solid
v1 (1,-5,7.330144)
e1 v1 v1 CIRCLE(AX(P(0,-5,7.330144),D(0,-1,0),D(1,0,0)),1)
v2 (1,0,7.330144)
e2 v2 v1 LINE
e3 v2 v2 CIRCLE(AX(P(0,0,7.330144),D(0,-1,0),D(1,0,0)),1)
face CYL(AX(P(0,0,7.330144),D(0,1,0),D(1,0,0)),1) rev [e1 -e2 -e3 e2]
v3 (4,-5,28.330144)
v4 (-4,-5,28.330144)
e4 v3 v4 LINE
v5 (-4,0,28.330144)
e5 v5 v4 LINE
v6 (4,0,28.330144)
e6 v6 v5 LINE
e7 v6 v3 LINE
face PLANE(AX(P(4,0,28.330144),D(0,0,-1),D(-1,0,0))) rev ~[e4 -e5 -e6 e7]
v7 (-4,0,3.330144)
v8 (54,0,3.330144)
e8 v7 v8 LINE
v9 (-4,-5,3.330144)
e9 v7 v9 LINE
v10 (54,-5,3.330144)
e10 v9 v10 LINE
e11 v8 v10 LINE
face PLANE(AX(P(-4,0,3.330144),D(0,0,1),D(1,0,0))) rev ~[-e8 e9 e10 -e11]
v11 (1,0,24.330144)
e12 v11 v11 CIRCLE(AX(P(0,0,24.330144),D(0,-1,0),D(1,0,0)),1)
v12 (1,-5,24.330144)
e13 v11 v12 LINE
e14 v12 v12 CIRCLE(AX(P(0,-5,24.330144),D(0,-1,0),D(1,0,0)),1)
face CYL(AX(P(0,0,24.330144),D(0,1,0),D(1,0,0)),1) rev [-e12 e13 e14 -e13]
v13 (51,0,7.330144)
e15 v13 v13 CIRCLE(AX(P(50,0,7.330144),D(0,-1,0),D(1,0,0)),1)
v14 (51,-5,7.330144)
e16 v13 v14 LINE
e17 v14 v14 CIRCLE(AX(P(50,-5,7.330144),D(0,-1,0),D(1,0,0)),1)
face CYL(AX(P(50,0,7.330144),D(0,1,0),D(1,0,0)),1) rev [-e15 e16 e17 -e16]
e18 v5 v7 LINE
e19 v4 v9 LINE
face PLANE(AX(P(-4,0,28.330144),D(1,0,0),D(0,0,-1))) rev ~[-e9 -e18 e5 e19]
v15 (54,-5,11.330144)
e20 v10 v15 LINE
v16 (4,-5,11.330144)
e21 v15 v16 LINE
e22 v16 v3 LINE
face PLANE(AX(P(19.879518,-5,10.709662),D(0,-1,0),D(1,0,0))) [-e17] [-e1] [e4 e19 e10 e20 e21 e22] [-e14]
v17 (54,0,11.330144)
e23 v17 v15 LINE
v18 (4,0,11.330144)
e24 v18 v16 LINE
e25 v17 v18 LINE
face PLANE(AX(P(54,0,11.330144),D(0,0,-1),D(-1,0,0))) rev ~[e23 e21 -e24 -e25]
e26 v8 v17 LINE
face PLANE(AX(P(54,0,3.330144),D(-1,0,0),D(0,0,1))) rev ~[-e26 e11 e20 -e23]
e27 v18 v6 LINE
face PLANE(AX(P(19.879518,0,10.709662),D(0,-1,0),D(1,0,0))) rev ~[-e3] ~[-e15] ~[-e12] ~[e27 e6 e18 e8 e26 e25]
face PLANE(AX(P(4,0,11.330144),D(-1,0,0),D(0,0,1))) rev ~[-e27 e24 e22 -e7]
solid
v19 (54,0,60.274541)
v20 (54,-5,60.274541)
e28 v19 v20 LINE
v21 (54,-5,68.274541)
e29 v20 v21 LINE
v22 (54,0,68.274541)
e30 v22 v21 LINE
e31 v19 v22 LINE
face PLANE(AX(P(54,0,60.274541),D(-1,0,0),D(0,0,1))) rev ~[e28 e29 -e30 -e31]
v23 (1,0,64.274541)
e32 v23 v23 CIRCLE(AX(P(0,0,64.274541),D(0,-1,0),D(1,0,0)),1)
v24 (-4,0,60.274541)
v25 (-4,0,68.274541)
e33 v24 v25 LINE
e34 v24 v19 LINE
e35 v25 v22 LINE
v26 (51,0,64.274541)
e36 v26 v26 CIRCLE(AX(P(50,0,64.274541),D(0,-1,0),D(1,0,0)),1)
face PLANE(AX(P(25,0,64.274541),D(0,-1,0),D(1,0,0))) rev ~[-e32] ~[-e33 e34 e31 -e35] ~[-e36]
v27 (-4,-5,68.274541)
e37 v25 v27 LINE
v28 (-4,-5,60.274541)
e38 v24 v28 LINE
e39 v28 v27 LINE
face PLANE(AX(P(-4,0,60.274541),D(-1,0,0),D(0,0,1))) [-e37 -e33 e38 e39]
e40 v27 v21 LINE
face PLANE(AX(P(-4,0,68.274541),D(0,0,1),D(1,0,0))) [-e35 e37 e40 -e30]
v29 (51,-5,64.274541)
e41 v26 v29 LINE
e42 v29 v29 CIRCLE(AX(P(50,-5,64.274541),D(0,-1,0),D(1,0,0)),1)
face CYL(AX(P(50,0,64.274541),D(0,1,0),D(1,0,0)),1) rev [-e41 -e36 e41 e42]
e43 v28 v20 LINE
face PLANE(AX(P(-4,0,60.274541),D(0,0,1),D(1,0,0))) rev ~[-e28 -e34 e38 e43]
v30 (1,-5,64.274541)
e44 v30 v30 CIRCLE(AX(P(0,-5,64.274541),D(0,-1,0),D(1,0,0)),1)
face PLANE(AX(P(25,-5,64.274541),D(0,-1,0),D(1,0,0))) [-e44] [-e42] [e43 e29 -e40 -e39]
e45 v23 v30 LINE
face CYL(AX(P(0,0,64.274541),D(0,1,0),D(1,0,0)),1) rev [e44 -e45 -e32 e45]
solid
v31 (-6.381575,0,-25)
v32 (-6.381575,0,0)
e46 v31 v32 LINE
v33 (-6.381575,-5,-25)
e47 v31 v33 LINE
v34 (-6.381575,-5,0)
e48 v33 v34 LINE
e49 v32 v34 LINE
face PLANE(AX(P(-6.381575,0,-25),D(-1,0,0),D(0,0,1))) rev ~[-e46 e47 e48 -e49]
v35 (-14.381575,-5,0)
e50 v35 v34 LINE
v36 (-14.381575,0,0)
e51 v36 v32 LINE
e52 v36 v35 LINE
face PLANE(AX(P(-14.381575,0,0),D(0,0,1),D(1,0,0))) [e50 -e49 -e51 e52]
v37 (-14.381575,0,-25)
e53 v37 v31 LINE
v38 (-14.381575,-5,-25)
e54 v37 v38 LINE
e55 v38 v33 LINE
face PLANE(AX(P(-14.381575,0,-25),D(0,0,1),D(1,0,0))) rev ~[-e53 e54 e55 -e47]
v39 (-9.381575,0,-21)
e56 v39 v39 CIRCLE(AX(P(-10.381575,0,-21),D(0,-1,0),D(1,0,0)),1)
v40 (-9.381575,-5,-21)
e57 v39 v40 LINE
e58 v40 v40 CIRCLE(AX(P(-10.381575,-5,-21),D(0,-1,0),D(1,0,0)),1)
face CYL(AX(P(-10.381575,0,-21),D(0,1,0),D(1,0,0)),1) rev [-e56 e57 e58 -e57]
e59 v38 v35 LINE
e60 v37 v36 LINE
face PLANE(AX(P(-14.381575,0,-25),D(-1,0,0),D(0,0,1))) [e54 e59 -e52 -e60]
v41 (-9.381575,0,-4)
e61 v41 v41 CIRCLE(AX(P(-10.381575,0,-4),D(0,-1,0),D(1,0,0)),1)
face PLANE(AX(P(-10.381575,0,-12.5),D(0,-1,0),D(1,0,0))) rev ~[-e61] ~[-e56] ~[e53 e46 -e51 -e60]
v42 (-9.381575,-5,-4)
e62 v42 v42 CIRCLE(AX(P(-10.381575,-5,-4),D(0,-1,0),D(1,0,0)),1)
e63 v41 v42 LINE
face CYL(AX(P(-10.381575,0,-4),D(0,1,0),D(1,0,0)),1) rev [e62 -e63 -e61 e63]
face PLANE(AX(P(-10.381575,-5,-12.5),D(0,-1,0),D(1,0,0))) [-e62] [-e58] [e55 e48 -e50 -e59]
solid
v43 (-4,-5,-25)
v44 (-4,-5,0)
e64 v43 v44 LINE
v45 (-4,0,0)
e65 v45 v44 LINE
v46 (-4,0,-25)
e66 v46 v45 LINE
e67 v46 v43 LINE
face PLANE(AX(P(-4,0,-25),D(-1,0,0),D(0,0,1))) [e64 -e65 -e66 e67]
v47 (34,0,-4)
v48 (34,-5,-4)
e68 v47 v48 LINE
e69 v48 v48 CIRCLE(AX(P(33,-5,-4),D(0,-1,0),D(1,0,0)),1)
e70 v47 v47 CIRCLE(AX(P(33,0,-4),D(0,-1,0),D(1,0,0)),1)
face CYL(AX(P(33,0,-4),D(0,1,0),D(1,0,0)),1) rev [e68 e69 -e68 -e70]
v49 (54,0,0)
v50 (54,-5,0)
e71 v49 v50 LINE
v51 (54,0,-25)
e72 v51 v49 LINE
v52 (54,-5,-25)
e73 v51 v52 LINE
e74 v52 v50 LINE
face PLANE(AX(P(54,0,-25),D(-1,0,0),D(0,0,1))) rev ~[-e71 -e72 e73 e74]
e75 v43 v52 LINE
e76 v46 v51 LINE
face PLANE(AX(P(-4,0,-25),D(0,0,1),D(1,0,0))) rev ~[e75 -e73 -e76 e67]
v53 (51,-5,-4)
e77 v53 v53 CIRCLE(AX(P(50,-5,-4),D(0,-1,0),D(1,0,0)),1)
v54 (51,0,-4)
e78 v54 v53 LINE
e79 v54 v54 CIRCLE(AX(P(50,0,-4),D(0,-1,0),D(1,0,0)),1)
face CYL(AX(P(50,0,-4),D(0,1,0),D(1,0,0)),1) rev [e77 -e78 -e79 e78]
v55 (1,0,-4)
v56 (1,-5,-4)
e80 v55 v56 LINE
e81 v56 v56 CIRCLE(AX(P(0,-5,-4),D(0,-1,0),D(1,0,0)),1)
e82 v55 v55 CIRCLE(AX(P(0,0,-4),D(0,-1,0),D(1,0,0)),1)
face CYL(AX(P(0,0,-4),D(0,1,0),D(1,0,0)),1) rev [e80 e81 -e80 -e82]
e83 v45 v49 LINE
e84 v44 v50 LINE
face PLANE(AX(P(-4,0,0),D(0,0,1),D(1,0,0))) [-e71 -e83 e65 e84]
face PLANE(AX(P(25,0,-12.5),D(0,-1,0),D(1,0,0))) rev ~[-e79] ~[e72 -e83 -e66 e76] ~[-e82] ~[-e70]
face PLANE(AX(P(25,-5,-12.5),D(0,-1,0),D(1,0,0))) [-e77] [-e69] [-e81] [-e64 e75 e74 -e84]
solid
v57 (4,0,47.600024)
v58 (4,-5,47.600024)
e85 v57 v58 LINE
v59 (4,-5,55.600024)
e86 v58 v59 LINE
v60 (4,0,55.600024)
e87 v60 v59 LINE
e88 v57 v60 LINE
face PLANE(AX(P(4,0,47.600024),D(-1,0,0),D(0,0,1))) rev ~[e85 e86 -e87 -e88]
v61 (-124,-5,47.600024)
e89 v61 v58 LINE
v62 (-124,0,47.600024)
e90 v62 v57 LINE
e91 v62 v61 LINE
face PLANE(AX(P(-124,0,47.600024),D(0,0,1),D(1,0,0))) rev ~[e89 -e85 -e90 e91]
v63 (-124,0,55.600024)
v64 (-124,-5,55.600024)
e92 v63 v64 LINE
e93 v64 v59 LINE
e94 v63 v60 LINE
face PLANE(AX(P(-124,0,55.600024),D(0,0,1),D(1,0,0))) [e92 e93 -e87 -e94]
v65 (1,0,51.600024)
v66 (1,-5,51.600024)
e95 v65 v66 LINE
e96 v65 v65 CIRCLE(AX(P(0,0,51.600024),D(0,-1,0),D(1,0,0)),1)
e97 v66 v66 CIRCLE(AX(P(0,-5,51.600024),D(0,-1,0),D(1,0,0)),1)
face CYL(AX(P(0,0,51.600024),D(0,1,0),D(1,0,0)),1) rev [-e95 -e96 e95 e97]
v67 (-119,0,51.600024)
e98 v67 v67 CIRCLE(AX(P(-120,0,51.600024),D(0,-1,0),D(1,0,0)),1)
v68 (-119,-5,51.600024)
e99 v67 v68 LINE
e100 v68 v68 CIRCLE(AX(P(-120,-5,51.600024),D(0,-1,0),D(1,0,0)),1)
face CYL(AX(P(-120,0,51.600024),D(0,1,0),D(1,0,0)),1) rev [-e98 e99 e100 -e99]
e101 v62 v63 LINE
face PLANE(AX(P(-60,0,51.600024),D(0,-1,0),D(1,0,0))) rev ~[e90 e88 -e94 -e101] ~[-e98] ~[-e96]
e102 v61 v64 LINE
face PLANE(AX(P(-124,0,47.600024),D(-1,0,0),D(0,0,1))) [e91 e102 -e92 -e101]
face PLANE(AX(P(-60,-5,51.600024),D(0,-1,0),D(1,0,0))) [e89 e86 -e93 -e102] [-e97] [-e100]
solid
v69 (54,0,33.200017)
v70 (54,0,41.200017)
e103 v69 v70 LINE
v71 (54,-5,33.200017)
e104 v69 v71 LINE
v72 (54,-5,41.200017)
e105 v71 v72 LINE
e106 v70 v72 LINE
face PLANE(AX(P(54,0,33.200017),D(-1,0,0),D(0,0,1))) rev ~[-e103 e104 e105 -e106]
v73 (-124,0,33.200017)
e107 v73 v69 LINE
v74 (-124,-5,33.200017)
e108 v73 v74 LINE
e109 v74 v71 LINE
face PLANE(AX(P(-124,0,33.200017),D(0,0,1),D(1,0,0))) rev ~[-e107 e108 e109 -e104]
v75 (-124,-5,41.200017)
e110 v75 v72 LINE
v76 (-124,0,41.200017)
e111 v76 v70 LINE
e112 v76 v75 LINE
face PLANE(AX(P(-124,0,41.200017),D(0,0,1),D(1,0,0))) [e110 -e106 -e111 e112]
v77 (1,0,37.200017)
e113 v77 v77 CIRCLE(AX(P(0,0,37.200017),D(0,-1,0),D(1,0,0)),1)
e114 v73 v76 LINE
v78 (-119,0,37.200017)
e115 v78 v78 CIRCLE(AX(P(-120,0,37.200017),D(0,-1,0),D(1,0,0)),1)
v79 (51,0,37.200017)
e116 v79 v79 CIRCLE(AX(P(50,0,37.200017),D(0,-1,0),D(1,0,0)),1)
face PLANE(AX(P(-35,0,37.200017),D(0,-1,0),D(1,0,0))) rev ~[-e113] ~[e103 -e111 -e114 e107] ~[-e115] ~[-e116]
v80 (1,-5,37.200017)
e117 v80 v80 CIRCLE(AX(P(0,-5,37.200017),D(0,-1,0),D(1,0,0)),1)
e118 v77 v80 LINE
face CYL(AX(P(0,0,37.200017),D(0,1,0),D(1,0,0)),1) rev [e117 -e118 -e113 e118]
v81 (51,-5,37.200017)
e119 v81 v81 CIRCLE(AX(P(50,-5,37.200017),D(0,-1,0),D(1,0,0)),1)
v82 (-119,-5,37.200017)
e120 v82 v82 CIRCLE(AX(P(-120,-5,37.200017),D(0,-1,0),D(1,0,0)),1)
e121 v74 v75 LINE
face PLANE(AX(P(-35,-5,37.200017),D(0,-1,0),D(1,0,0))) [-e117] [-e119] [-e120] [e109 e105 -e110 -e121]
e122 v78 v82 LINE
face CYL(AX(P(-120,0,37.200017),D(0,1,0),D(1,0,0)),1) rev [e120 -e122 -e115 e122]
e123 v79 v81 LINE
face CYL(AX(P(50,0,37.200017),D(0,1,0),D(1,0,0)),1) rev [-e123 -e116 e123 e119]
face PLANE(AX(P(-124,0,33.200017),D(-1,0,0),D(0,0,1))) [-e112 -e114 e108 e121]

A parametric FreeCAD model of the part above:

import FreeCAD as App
import Part
import Sketcher

doc = App.newDocument("Part")
body = doc.addObject("PartDesign::Body", "Body")

# Sketch on XZ plane
sketch1 = body.newObject("Sketcher::SketchObject", "Sketch")
sketch1.AttachmentSupport = (doc.getObject("XZ_Plane"), [""])
sketch1.MapMode = "FlatFace"
sketch1.addGeometry([
    Part.LineSegment(App.Vector(-4, 68.3, 0), App.Vector(-4, 60.3, 0)),  # 0
    Part.LineSegment(App.Vector(-4, 60.3, 0), App.Vector(54, 60.3, 0)),  # 1
    Part.LineSegment(App.Vector(54, 60.3, 0), App.Vector(54, 68.3, 0)),  # 2
    Part.LineSegment(App.Vector(54, 68.3, 0), App.Vector(-4, 68.3, 0)),  # 3
    Part.Circle(App.Vector(0, 64.3, 0), App.Vector(0, 0, 1), 1),  # 4
    Part.Circle(App.Vector(50, 64.3, 0), App.Vector(0, 0, 1), 1),  # 5
], False)
sketch1.addConstraint([
    Sketcher.Constraint("Coincident", 0, 2, 1, 1),
    Sketcher.Constraint("Coincident", 1, 2, 2, 1),
    Sketcher.Constraint("Coincident", 2, 2, 3, 1),
    Sketcher.Constraint("Coincident", 3, 2, 0, 1),
    Sketcher.Constraint("Vertical", 0),
    Sketcher.Constraint("Horizontal", 1),
    Sketcher.Constraint("Vertical", 2),
    Sketcher.Constraint("Horizontal", 3),
    Sketcher.Constraint("Equal", 4, 5),
    Sketcher.Constraint("PointOnObject", 4, 3, -2),
    Sketcher.Constraint("Horizontal", 4, 3, 5, 3),
    Sketcher.Constraint("Diameter", 4, 2.0),
    Sketcher.Constraint("DistanceX", 1, 1, 1, 2, 58.0),
    Sketcher.Constraint("DistanceY", 0, 2, 0, 1, 8.0),
    Sketcher.Constraint("DistanceX", -1, 1, 5, 3, 50.0),
    Sketcher.Constraint("DistanceX", 0, 2, -1, 1, 4.0),
    Sketcher.Constraint("DistanceY", 0, 2, 4, 3, 4.0),
    Sketcher.Constraint("DistanceY", -1, 1, 4, 3, 64.274541),
])
pad1 = body.newObject("PartDesign::Pad", "Pad")
pad1.Profile = sketch1
pad1.Length = 5
body2 = doc.addObject("PartDesign::Body", "Body001")

# Sketch on XZ plane
sketch2 = body2.newObject("Sketcher::SketchObject", "Sketch001")
sketch2.AttachmentSupport = (doc.getObject("XZ_Plane001"), [""])
sketch2.MapMode = "FlatFace"
sketch2.addGeometry([
    Part.LineSegment(App.Vector(-124, 55.600024, 0), App.Vector(-124, 47.600024, 0)),  # 0
    Part.LineSegment(App.Vector(-124, 47.600024, 0), App.Vector(4, 47.600024, 0)),  # 1
    Part.LineSegment(App.Vector(4, 47.600024, 0), App.Vector(4, 55.600024, 0)),  # 2
    Part.LineSegment(App.Vector(4, 55.600024, 0), App.Vector(-124, 55.600024, 0)),  # 3
    Part.Circle(App.Vector(-120, 51.600024, 0), App.Vector(0, 0, 1), 1),  # 4
    Part.Circle(App.Vector(0, 51.600024, 0), App.Vector(0, 0, 1), 1),  # 5
], False)
sketch2.addConstraint([
    Sketcher.Constraint("Coincident", 0, 2, 1, 1),
    Sketcher.Constraint("Coincident", 1, 2, 2, 1),
    Sketcher.Constraint("Coincident", 2, 2, 3, 1),
    Sketcher.Constraint("Coincident", 3, 2, 0, 1),
    Sketcher.Constraint("Vertical", 0),
    Sketcher.Constraint("Horizontal", 1),
    Sketcher.Constraint("Vertical", 2),
    Sketcher.Constraint("Horizontal", 3),
    Sketcher.Constraint("Equal", 4, 5),
    Sketcher.Constraint("PointOnObject", 5, 3, -2),
    Sketcher.Constraint("Horizontal", 4, 3, 5, 3),
    Sketcher.Constraint("Diameter", 4, 2.0),
    Sketcher.Constraint("DistanceX", 1, 1, 1, 2, 128.0),
    Sketcher.Constraint("DistanceY", 0, 2, 0, 1, 8.0),
    Sketcher.Constraint("DistanceX", 4, 3, -1, 1, 120.0),
    Sketcher.Constraint("DistanceX", 0, 2, -1, 1, 124.0),
    Sketcher.Constraint("DistanceY", 0, 2, 4, 3, 4.0),
    Sketcher.Constraint("DistanceY", -1, 1, 4, 3, 51.600024),
])
pad2 = body2.newObject("PartDesign::Pad", "Pad001")
pad2.Profile = sketch2
pad2.Length = 5
body3 = doc.addObject("PartDesign::Body", "Body002")

# Sketch on XZ plane
sketch3 = body3.newObject("Sketcher::SketchObject", "Sketch002")
sketch3.AttachmentSupport = (doc.getObject("XZ_Plane002"), [""])
sketch3.MapMode = "FlatFace"
sketch3.addGeometry([
    Part.LineSegment(App.Vector(-124, 41.2, 0), App.Vector(-124, 33.2, 0)),  # 0
    Part.LineSegment(App.Vector(-124, 33.2, 0), App.Vector(54, 33.2, 0)),  # 1
    Part.LineSegment(App.Vector(54, 33.2, 0), App.Vector(54, 41.2, 0)),  # 2
    Part.LineSegment(App.Vector(54, 41.2, 0), App.Vector(-124, 41.2, 0)),  # 3
    Part.Circle(App.Vector(-120, 37.2, 0), App.Vector(0, 0, 1), 1),  # 4
    Part.Circle(App.Vector(0, 37.2, 0), App.Vector(0, 0, 1), 1),  # 5
    Part.Circle(App.Vector(50, 37.2, 0), App.Vector(0, 0, 1), 1),  # 6
], False)
sketch3.addConstraint([
    Sketcher.Constraint("Coincident", 0, 2, 1, 1),
    Sketcher.Constraint("Coincident", 1, 2, 2, 1),
    Sketcher.Constraint("Coincident", 2, 2, 3, 1),
    Sketcher.Constraint("Coincident", 3, 2, 0, 1),
    Sketcher.Constraint("Vertical", 0),
    Sketcher.Constraint("Horizontal", 1),
    Sketcher.Constraint("Vertical", 2),
    Sketcher.Constraint("Horizontal", 3),
    Sketcher.Constraint("Equal", 4, 5),
    Sketcher.Constraint("Equal", 5, 6),
    Sketcher.Constraint("PointOnObject", 5, 3, -2),
    Sketcher.Constraint("Horizontal", 4, 3, 5, 3),
    Sketcher.Constraint("Horizontal", 5, 3, 6, 3),
    Sketcher.Constraint("Diameter", 4, 2.0),
    Sketcher.Constraint("DistanceX", 1, 1, 1, 2, 178.0),
    Sketcher.Constraint("DistanceY", 0, 2, 0, 1, 8.0),
    Sketcher.Constraint("DistanceX", 4, 3, -1, 1, 120.0),
    Sketcher.Constraint("DistanceX", -1, 1, 6, 3, 50.0),
    Sketcher.Constraint("DistanceX", 0, 2, -1, 1, 124.0),
    Sketcher.Constraint("DistanceY", 0, 2, 4, 3, 4.0),
    Sketcher.Constraint("DistanceY", -1, 1, 4, 3, 37.200017),
])
pad3 = body3.newObject("PartDesign::Pad", "Pad002")
pad3.Profile = sketch3
pad3.Length = 5
body4 = doc.addObject("PartDesign::Body", "Body003")

# Sketch on XZ plane
sketch4 = body4.newObject("Sketcher::SketchObject", "Sketch003")
sketch4.AttachmentSupport = (doc.getObject("XZ_Plane003"), [""])
sketch4.MapMode = "FlatFace"
sketch4.addGeometry([
    Part.LineSegment(App.Vector(4, 28.3, 0), App.Vector(-4, 28.3, 0)),  # 0
    Part.LineSegment(App.Vector(-4, 28.3, 0), App.Vector(-4, 3.3, 0)),  # 1
    Part.LineSegment(App.Vector(-4, 3.3, 0), App.Vector(54, 3.3, 0)),  # 2
    Part.LineSegment(App.Vector(54, 3.3, 0), App.Vector(54, 11.3, 0)),  # 3
    Part.LineSegment(App.Vector(54, 11.3, 0), App.Vector(4, 11.3, 0)),  # 4
    Part.LineSegment(App.Vector(4, 11.3, 0), App.Vector(4, 28.3, 0)),  # 5
    Part.Circle(App.Vector(0, 7.3, 0), App.Vector(0, 0, 1), 1),  # 6
    Part.Circle(App.Vector(50, 7.3, 0), App.Vector(0, 0, 1), 1),  # 7
    Part.Circle(App.Vector(0, 24.3, 0), App.Vector(0, 0, 1), 1),  # 8
], False)
sketch4.addConstraint([
    Sketcher.Constraint("Coincident", 0, 2, 1, 1),
    Sketcher.Constraint("Coincident", 1, 2, 2, 1),
    Sketcher.Constraint("Coincident", 2, 2, 3, 1),
    Sketcher.Constraint("Coincident", 3, 2, 4, 1),
    Sketcher.Constraint("Coincident", 4, 2, 5, 1),
    Sketcher.Constraint("Coincident", 5, 2, 0, 1),
    Sketcher.Constraint("Horizontal", 0),
    Sketcher.Constraint("Vertical", 1),
    Sketcher.Constraint("Horizontal", 2),
    Sketcher.Constraint("Vertical", 3),
    Sketcher.Constraint("Horizontal", 4),
    Sketcher.Constraint("Vertical", 5),
    Sketcher.Constraint("Equal", 6, 7),
    Sketcher.Constraint("Equal", 7, 8),
    Sketcher.Constraint("PointOnObject", 6, 3, -2),
    Sketcher.Constraint("PointOnObject", 8, 3, -2),
    Sketcher.Constraint("Horizontal", 6, 3, 7, 3),
    Sketcher.Constraint("Equal", 0, 3),
    Sketcher.Constraint("Diameter", 6, 2.0),
    Sketcher.Constraint("DistanceX", 0, 2, 0, 1, 8.0),
    Sketcher.Constraint("DistanceX", 2, 1, 2, 2, 58.0),
    Sketcher.Constraint("DistanceY", 1, 2, 1, 1, 25.0),
    Sketcher.Constraint("DistanceX", -1, 1, 7, 3, 50.0),
    Sketcher.Constraint("DistanceX", 0, 2, -1, 1, 4.0),
    Sketcher.Constraint("DistanceY", 6, 3, 8, 3, 17.0),
    Sketcher.Constraint("DistanceY", 8, 3, 0, 2, 4.0),
    Sketcher.Constraint("DistanceY", -1, 1, 6, 3, 7.330144),
])
pad4 = body4.newObject("PartDesign::Pad", "Pad003")
pad4.Profile = sketch4
pad4.Length = 5
body5 = doc.addObject("PartDesign::Body", "Body004")

# Sketch on XZ plane
sketch5 = body5.newObject("Sketcher::SketchObject", "Sketch004")
sketch5.AttachmentSupport = (doc.getObject("XZ_Plane004"), [""])
sketch5.MapMode = "FlatFace"
sketch5.addGeometry([
    Part.LineSegment(App.Vector(-14.4, 0, 0), App.Vector(-14.4, -25, 0)),  # 0
    Part.LineSegment(App.Vector(-14.4, -25, 0), App.Vector(-6.4, -25, 0)),  # 1
    Part.LineSegment(App.Vector(-6.4, -25, 0), App.Vector(-6.4, 0, 0)),  # 2
    Part.LineSegment(App.Vector(-6.4, 0, 0), App.Vector(-14.4, 0, 0)),  # 3
    Part.Circle(App.Vector(-10.4, -21, 0), App.Vector(0, 0, 1), 1),  # 4
    Part.Circle(App.Vector(-10.4, -4, 0), App.Vector(0, 0, 1), 1),  # 5
], False)
sketch5.addConstraint([
    Sketcher.Constraint("Coincident", 0, 2, 1, 1),
    Sketcher.Constraint("Coincident", 1, 2, 2, 1),
    Sketcher.Constraint("Coincident", 2, 2, 3, 1),
    Sketcher.Constraint("Coincident", 3, 2, 0, 1),
    Sketcher.Constraint("Vertical", 0),
    Sketcher.Constraint("Horizontal", 1),
    Sketcher.Constraint("Vertical", 2),
    Sketcher.Constraint("Horizontal", 3),
    Sketcher.Constraint("Equal", 4, 5),
    Sketcher.Constraint("PointOnObject", 2, 2, -1),
    Sketcher.Constraint("Vertical", 4, 3, 5, 3),
    Sketcher.Constraint("Diameter", 4, 2.0),
    Sketcher.Constraint("DistanceX", 1, 1, 1, 2, 8.0),
    Sketcher.Constraint("DistanceY", 0, 2, 0, 1, 25.0),
    Sketcher.Constraint("DistanceY", 4, 3, -1, 1, 21.0),
    Sketcher.Constraint("DistanceY", 5, 3, -1, 1, 4.0),
    Sketcher.Constraint("DistanceX", 0, 2, 4, 3, 4.0),
    Sketcher.Constraint("DistanceX", 4, 3, -1, 1, 10.381575),
])
pad5 = body5.newObject("PartDesign::Pad", "Pad004")
pad5.Profile = sketch5
pad5.Length = 5
body6 = doc.addObject("PartDesign::Body", "Body005")

# Sketch on XZ plane
sketch6 = body6.newObject("Sketcher::SketchObject", "Sketch005")
sketch6.AttachmentSupport = (doc.getObject("XZ_Plane005"), [""])
sketch6.MapMode = "FlatFace"
sketch6.addGeometry([
    Part.LineSegment(App.Vector(-4, 0, 0), App.Vector(-4, -25, 0)),  # 0
    Part.LineSegment(App.Vector(-4, -25, 0), App.Vector(54, -25, 0)),  # 1
    Part.LineSegment(App.Vector(54, -25, 0), App.Vector(54, 0, 0)),  # 2
    Part.LineSegment(App.Vector(54, 0, 0), App.Vector(-4, 0, 0)),  # 3
    Part.Circle(App.Vector(0, -4, 0), App.Vector(0, 0, 1), 1),  # 4
    Part.Circle(App.Vector(33, -4, 0), App.Vector(0, 0, 1), 1),  # 5
    Part.Circle(App.Vector(50, -4, 0), App.Vector(0, 0, 1), 1),  # 6
], False)
sketch6.addConstraint([
    Sketcher.Constraint("Coincident", 0, 2, 1, 1),
    Sketcher.Constraint("Coincident", 1, 2, 2, 1),
    Sketcher.Constraint("Coincident", 2, 2, 3, 1),
    Sketcher.Constraint("Coincident", 3, 2, 0, 1),
    Sketcher.Constraint("Vertical", 0),
    Sketcher.Constraint("Horizontal", 1),
    Sketcher.Constraint("Vertical", 2),
    Sketcher.Constraint("Horizontal", 3),
    Sketcher.Constraint("Equal", 4, 5),
    Sketcher.Constraint("Equal", 5, 6),
    Sketcher.Constraint("PointOnObject", 4, 3, -2),
    Sketcher.Constraint("PointOnObject", 2, 2, -1),
    Sketcher.Constraint("Horizontal", 4, 3, 5, 3),
    Sketcher.Constraint("Horizontal", 5, 3, 6, 3),
    Sketcher.Constraint("Diameter", 4, 2.0),
    Sketcher.Constraint("DistanceX", 1, 1, 1, 2, 58.0),
    Sketcher.Constraint("DistanceY", 0, 2, 0, 1, 25.0),
    Sketcher.Constraint("DistanceY", 4, 3, -1, 1, 4.0),
    Sketcher.Constraint("DistanceX", -1, 1, 5, 3, 33.0),
    Sketcher.Constraint("DistanceX", -1, 1, 6, 3, 50.0),
    Sketcher.Constraint("DistanceX", 0, 2, -1, 1, 4.0),
])
pad6 = body6.newObject("PartDesign::Pad", "Pad005")
pad6.Profile = sketch6
pad6.Length = 5

doc.recompute()
